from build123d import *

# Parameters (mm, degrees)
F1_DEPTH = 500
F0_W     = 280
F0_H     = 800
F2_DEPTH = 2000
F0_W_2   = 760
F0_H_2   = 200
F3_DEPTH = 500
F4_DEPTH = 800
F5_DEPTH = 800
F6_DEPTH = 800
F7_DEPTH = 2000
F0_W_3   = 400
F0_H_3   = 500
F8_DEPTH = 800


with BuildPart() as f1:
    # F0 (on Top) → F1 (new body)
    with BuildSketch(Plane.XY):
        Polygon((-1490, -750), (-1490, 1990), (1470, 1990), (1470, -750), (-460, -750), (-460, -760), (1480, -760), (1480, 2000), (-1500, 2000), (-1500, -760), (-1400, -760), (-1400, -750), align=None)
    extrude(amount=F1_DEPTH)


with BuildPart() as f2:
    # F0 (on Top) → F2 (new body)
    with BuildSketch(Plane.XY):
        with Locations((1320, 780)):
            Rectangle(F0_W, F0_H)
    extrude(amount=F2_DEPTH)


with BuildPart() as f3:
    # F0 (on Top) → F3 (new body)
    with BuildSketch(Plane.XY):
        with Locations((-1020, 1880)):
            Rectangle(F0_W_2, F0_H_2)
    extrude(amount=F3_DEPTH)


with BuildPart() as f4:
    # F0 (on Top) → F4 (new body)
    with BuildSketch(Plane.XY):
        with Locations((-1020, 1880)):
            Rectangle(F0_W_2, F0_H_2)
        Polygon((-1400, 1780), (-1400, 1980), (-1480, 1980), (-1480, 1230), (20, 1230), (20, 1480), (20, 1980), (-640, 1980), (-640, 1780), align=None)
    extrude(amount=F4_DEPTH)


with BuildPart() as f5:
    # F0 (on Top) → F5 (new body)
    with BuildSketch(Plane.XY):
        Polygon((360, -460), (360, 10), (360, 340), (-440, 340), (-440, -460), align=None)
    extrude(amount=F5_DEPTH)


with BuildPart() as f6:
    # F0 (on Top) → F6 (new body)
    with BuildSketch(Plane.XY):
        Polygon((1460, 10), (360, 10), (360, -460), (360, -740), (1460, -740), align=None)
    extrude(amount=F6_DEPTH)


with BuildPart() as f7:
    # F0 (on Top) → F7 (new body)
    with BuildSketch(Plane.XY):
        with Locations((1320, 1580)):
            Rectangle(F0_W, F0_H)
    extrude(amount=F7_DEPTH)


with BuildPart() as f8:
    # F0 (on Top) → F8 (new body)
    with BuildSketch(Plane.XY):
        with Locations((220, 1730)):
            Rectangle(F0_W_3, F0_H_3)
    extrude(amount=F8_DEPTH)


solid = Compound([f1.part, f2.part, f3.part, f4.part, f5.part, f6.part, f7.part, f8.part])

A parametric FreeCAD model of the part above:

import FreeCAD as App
import Part
import Sketcher
from FreeCAD import Vector
Q = App.Units.Quantity

doc = App.newDocument("Part")
params = doc.addObject("Spreadsheet::Sheet", "Params")
for row, (alias, value) in enumerate([
    ("sketch1_width", "2960 mm"),
    ("sketch1_width2", "1930 mm"),
    ("sketch1_width3", "1940 mm"),
    ("sketch1_width4", "2980 mm"),
    ("sketch1_width5", "100 mm"),
    ("pad1_length", "500 mm"),
    ("sketch2_width", "280 mm"),
    ("sketch2_height", "800 mm"),
    ("pad2_length", "2000 mm"),
    ("sketch3_width", "760 mm"),
    ("sketch3_height", "200 mm"),
    ("pad3_length", "500 mm"),
    ("sketch4_width", "1500 mm"),
    ("sketch4_height", "750 mm"),
    ("pad4_length", "800 mm"),
    ("sketch5_width", "800 mm"),
    ("pad5_length", "800 mm"),
    ("sketch6_width", "1100 mm"),
    ("sketch6_height", "750 mm"),
    ("pad6_length", "800 mm"),
    ("sketch7_width", "280 mm"),
    ("sketch7_height", "800 mm"),
    ("pad7_length", "2000 mm"),
    ("sketch8_width", "400 mm"),
    ("sketch8_height", "500 mm"),
    ("pad8_length", "800 mm"),
], start=1):
    params.set(f"A{row}", alias)
    params.set(f"B{row}", "=" + value)
    params.setAlias(f"B{row}", alias)

body = doc.addObject("PartDesign::Body", "Body")

# Sketch on XY plane
sketch1 = body.newObject("Sketcher::SketchObject", "Sketch")
sketch1.AttachmentSupport = (doc.getObject("XY_Plane"), [""])
sketch1.MapMode = "FlatFace"
sketch1.addGeometry([
    Part.LineSegment(Vector(-1490, -750, 0), Vector(-1490, 1990, 0)),  # 0
    Part.LineSegment(Vector(-1490, 1990, 0), Vector(1470, 1990, 0)),  # 1
    Part.LineSegment(Vector(1470, 1990, 0), Vector(1470, -750, 0)),  # 2
    Part.LineSegment(Vector(1470, -750, 0), Vector(-460, -750, 0)),  # 3
    Part.LineSegment(Vector(-460, -750, 0), Vector(-460, -760, 0)),  # 4
    Part.LineSegment(Vector(-460, -760, 0), Vector(1480, -760, 0)),  # 5
    Part.LineSegment(Vector(1480, -760, 0), Vector(1480, 2000, 0)),  # 6
    Part.LineSegment(Vector(1480, 2000, 0), Vector(-1500, 2000, 0)),  # 7
    Part.LineSegment(Vector(-1500, 2000, 0), Vector(-1500, -760, 0)),  # 8
    Part.LineSegment(Vector(-1500, -760, 0), Vector(-1400, -760, 0)),  # 9
    Part.LineSegment(Vector(-1400, -760, 0), Vector(-1400, -750, 0)),  # 10
    Part.LineSegment(Vector(-1400, -750, 0), Vector(-1490, -750, 0)),  # 11
], False)
sketch1.addConstraint([
    Sketcher.Constraint("Coincident", 0, 2, 1, 1),
    Sketcher.Constraint("Coincident", 1, 2, 2, 1),
    Sketcher.Constraint("Coincident", 2, 2, 3, 1),
    Sketcher.Constraint("Coincident", 3, 2, 4, 1),
    Sketcher.Constraint("Coincident", 4, 2, 5, 1),
    Sketcher.Constraint("Coincident", 5, 2, 6, 1),
    Sketcher.Constraint("Coincident", 6, 2, 7, 1),
    Sketcher.Constraint("Coincident", 7, 2, 8, 1),
    Sketcher.Constraint("Coincident", 8, 2, 9, 1),
    Sketcher.Constraint("Coincident", 9, 2, 10, 1),
    Sketcher.Constraint("Coincident", 10, 2, 11, 1),
    Sketcher.Constraint("Coincident", 11, 2, 0, 1),
    Sketcher.Constraint("Vertical", 0),
    Sketcher.Constraint("Horizontal", 1),
    Sketcher.Constraint("Vertical", 2),
    Sketcher.Constraint("Horizontal", 3),
    Sketcher.Constraint("Vertical", 4),
    Sketcher.Constraint("Horizontal", 5),
    Sketcher.Constraint("Vertical", 6),
    Sketcher.Constraint("Horizontal", 7),
    Sketcher.Constraint("Vertical", 8),
    Sketcher.Constraint("Horizontal", 9),
    Sketcher.Constraint("Vertical", 10),
    Sketcher.Constraint("Horizontal", 11),
    Sketcher.Constraint("Horizontal", 5, 2, 8, 2),
    Sketcher.Constraint("Horizontal", 3, 2, 10, 2),
    Sketcher.Constraint("DistanceX", 1, 1, 1, 2, Q("2960 mm")),
    Sketcher.Constraint("DistanceX", 3, 2, 3, 1, Q("1930 mm")),
    Sketcher.Constraint("DistanceX", 5, 1, 5, 2, Q("1940 mm")),
    Sketcher.Constraint("DistanceX", 7, 2, 7, 1, Q("2980 mm")),
    Sketcher.Constraint("DistanceX", 9, 1, 9, 2, Q("100 mm")),
    Sketcher.Constraint("DistanceY", 0, 1, 0, 2, Q("2740 mm")),
    Sketcher.Constraint("DistanceY", 4, 2, 4, 1, Q("10 mm")),
    Sketcher.Constraint("DistanceY", 6, 1, 6, 2, Q("2760 mm")),
    Sketcher.Constraint("DistanceX", 0, 2, -1, 1, Q("1490 mm")),
    Sketcher.Constraint("DistanceY", -1, 1, 0, 2, Q("1990 mm")),
])
sketch1.setExpression("Constraints[26]", "Params.sketch1_width")
sketch1.setExpression("Constraints[27]", "Params.sketch1_width2")
sketch1.setExpression("Constraints[28]", "Params.sketch1_width3")
sketch1.setExpression("Constraints[29]", "Params.sketch1_width4")
sketch1.setExpression("Constraints[30]", "Params.sketch1_width5")
pad1 = body.newObject("PartDesign::Pad", "Pad")
pad1.Profile = sketch1
pad1.setExpression("Length", "Params.pad1_length")
body2 = doc.addObject("PartDesign::Body", "Body001")

# Sketch on XY plane
sketch2 = body2.newObject("Sketcher::SketchObject", "Sketch001")
sketch2.AttachmentSupport = (doc.getObject("XY_Plane001"), [""])
sketch2.MapMode = "FlatFace"
sketch2.addGeometry([
    Part.LineSegment(Vector(1180, 1180, 0), Vector(1180, 380, 0)),
    Part.LineSegment(Vector(1180, 380, 0), Vector(1460, 380, 0)),
    Part.LineSegment(Vector(1460, 380, 0), Vector(1460, 1180, 0)),
    Part.LineSegment(Vector(1460, 1180, 0), Vector(1180, 1180, 0)),
], False)
sketch2.addConstraint([
    Sketcher.Constraint("Coincident", 0, 2, 1, 1),
    Sketcher.Constraint("Coincident", 1, 2, 2, 1),
    Sketcher.Constraint("Coincident", 2, 2, 3, 1),
    Sketcher.Constraint("Coincident", 3, 2, 0, 1),
    Sketcher.Constraint("Vertical", 0),
    Sketcher.Constraint("Horizontal", 1),
    Sketcher.Constraint("Vertical", 2),
    Sketcher.Constraint("Horizontal", 3),
    Sketcher.Constraint("DistanceX", 1, 1, 1, 2, Q("280 mm")),
    Sketcher.Constraint("DistanceY", 0, 2, 0, 1, Q("800 mm")),
    Sketcher.Constraint("DistanceX", -1, 1, 0, 2, Q("1180 mm")),
    Sketcher.Constraint("DistanceY", -1, 1, 0, 2, Q("380 mm")),
])
sketch2.setExpression("Constraints[8]", "Params.sketch2_width")
sketch2.setExpression("Constraints[9]", "Params.sketch2_height")
pad2 = body2.newObject("PartDesign::Pad", "Pad001")
pad2.Profile = sketch2
pad2.setExpression("Length", "Params.pad2_length")
body3 = doc.addObject("PartDesign::Body", "Body002")

# Sketch on XY plane
sketch3 = body3.newObject("Sketcher::SketchObject", "Sketch002")
sketch3.AttachmentSupport = (doc.getObject("XY_Plane002"), [""])
sketch3.MapMode = "FlatFace"
sketch3.addGeometry([
    Part.LineSegment(Vector(-1400, 1980, 0), Vector(-1400, 1780, 0)),
    Part.LineSegment(Vector(-1400, 1780, 0), Vector(-640, 1780, 0)),
    Part.LineSegment(Vector(-640, 1780, 0), Vector(-640, 1980, 0)),
    Part.LineSegment(Vector(-640, 1980, 0), Vector(-1400, 1980, 0)),
], False)
sketch3.addConstraint([
    Sketcher.Constraint("Coincident", 0, 2, 1, 1),
    Sketcher.Constraint("Coincident", 1, 2, 2, 1),
    Sketcher.Constraint("Coincident", 2, 2, 3, 1),
    Sketcher.Constraint("Coincident", 3, 2, 0, 1),
    Sketcher.Constraint("Vertical", 0),
    Sketcher.Constraint("Horizontal", 1),
    Sketcher.Constraint("Vertical", 2),
    Sketcher.Constraint("Horizontal", 3),
    Sketcher.Constraint("DistanceX", 1, 1, 1, 2, Q("760 mm")),
    Sketcher.Constraint("DistanceY", 0, 2, 0, 1, Q("200 mm")),
    Sketcher.Constraint("DistanceX", 0, 2, -1, 1, Q("1400 mm")),
    Sketcher.Constraint("DistanceY", -1, 1, 0, 2, Q("1780 mm")),
])
sketch3.setExpression("Constraints[8]", "Params.sketch3_width")
sketch3.setExpression("Constraints[9]", "Params.sketch3_height")
pad3 = body3.newObject("PartDesign::Pad", "Pad002")
pad3.Profile = sketch3
pad3.setExpression("Length", "Params.pad3_length")
body4 = doc.addObject("PartDesign::Body", "Body003")

# Sketch on XY plane
sketch4 = body4.newObject("Sketcher::SketchObject", "Sketch003")
sketch4.AttachmentSupport = (doc.getObject("XY_Plane003"), [""])
sketch4.MapMode = "FlatFace"
sketch4.addGeometry([
    Part.LineSegment(Vector(-1480, 1980, 0), Vector(-1480, 1230, 0)),
    Part.LineSegment(Vector(-1480, 1230, 0), Vector(20, 1230, 0)),
    Part.LineSegment(Vector(20, 1230, 0), Vector(20, 1980, 0)),
    Part.LineSegment(Vector(20, 1980, 0), Vector(-1480, 1980, 0)),
], False)
sketch4.addConstraint([
    Sketcher.Constraint("Coincident", 0, 2, 1, 1),
    Sketcher.Constraint("Coincident", 1, 2, 2, 1),
    Sketcher.Constraint("Coincident", 2, 2, 3, 1),
    Sketcher.Constraint("Coincident", 3, 2, 0, 1),
    Sketcher.Constraint("Vertical", 0),
    Sketcher.Constraint("Horizontal", 1),
    Sketcher.Constraint("Vertical", 2),
    Sketcher.Constraint("Horizontal", 3),
    Sketcher.Constraint("DistanceX", 1, 1, 1, 2, Q("1500 mm")),
    Sketcher.Constraint("DistanceY", 0, 2, 0, 1, Q("750 mm")),
    Sketcher.Constraint("DistanceX", 0, 2, -1, 1, Q("1480 mm")),
    Sketcher.Constraint("DistanceY", -1, 1, 0, 2, Q("1230 mm")),
])
sketch4.setExpression("Constraints[8]", "Params.sketch4_width")
sketch4.setExpression("Constraints[9]", "Params.sketch4_height")
pad4 = body4.newObject("PartDesign::Pad", "Pad003")
pad4.Profile = sketch4
pad4.setExpression("Length", "Params.pad4_length")
body5 = doc.addObject("PartDesign::Body", "Body004")

# Sketch on XY plane
sketch5 = body5.newObject("Sketcher::SketchObject", "Sketch004")
sketch5.AttachmentSupport = (doc.getObject("XY_Plane004"), [""])
sketch5.MapMode = "FlatFace"
sketch5.addGeometry([
    Part.LineSegment(Vector(360, -460, 0), Vector(360, 340, 0)),
    Part.LineSegment(Vector(360, 340, 0), Vector(-440, 340, 0)),
    Part.LineSegment(Vector(-440, 340, 0), Vector(-440, -460, 0)),
    Part.LineSegment(Vector(-440, -460, 0), Vector(360, -460, 0)),
], False)
sketch5.addConstraint([
    Sketcher.Constraint("Coincident", 0, 2, 1, 1),
    Sketcher.Constraint("Coincident", 1, 2, 2, 1),
    Sketcher.Constraint("Coincident", 2, 2, 3, 1),
    Sketcher.Constraint("Coincident", 3, 2, 0, 1),
    Sketcher.Constraint("Vertical", 0),
    Sketcher.Constraint("Horizontal", 1),
    Sketcher.Constraint("Vertical", 2),
    Sketcher.Constraint("Horizontal", 3),
    Sketcher.Constraint("Equal", 3, 0),
    Sketcher.Constraint("DistanceX", 1, 2, 1, 1, Q("800 mm")),
    Sketcher.Constraint("DistanceX", -1, 1, 0, 2, Q("360 mm")),
    Sketcher.Constraint("DistanceY", -1, 1, 0, 2, Q("340 mm")),
])
sketch5.setExpression("Constraints[9]", "Params.sketch5_width")
pad5 = body5.newObject("PartDesign::Pad", "Pad004")
pad5.Profile = sketch5
pad5.setExpression("Length", "Params.pad5_length")
body6 = doc.addObject("PartDesign::Body", "Body005")

# Sketch on XY plane
sketch6 = body6.newObject("Sketcher::SketchObject", "Sketch005")
sketch6.AttachmentSupport = (doc.getObject("XY_Plane005"), [""])
sketch6.MapMode = "FlatFace"
sketch6.addGeometry([
    Part.LineSegment(Vector(1460, 10, 0), Vector(360, 10, 0)),
    Part.LineSegment(Vector(360, 10, 0), Vector(360, -740, 0)),
    Part.LineSegment(Vector(360, -740, 0), Vector(1460, -740, 0)),
    Part.LineSegment(Vector(1460, -740, 0), Vector(1460, 10, 0)),
], False)
sketch6.addConstraint([
    Sketcher.Constraint("Coincident", 0, 2, 1, 1),
    Sketcher.Constraint("Coincident", 1, 2, 2, 1),
    Sketcher.Constraint("Coincident", 2, 2, 3, 1),
    Sketcher.Constraint("Coincident", 3, 2, 0, 1),
    Sketcher.Constraint("Horizontal", 0),
    Sketcher.Constraint("Vertical", 1),
    Sketcher.Constraint("Horizontal", 2),
    Sketcher.Constraint("Vertical", 3),
    Sketcher.Constraint("DistanceX", 0, 2, 0, 1, Q("1100 mm")),
    Sketcher.Constraint("DistanceY", 1, 2, 1, 1, Q("750 mm")),
    Sketcher.Constraint("DistanceX", -1, 1, 0, 2, Q("360 mm")),
    Sketcher.Constraint("DistanceY", -1, 1, 0, 2, Q("10 mm")),
])
sketch6.setExpression("Constraints[8]", "Params.sketch6_width")
sketch6.setExpression("Constraints[9]", "Params.sketch6_height")
pad6 = body6.newObject("PartDesign::Pad", "Pad005")
pad6.Profile = sketch6
pad6.setExpression("Length", "Params.pad6_length")
body7 = doc.addObject("PartDesign::Body", "Body006")

# Sketch on XY plane
sketch7 = body7.newObject("Sketcher::SketchObject", "Sketch006")
sketch7.AttachmentSupport = (doc.getObject("XY_Plane006"), [""])
sketch7.MapMode = "FlatFace"
sketch7.addGeometry([
    Part.LineSegment(Vector(1180, 1980, 0), Vector(1180, 1180, 0)),
    Part.LineSegment(Vector(1180, 1180, 0), Vector(1460, 1180, 0)),
    Part.LineSegment(Vector(1460, 1180, 0), Vector(1460, 1980, 0)),
    Part.LineSegment(Vector(1460, 1980, 0), Vector(1180, 1980, 0)),
], False)
sketch7.addConstraint([
    Sketcher.Constraint("Coincident", 0, 2, 1, 1),
    Sketcher.Constraint("Coincident", 1, 2, 2, 1),
    Sketcher.Constraint("Coincident", 2, 2, 3, 1),
    Sketcher.Constraint("Coincident", 3, 2, 0, 1),
    Sketcher.Constraint("Vertical", 0),
    Sketcher.Constraint("Horizontal", 1),
    Sketcher.Constraint("Vertical", 2),
    Sketcher.Constraint("Horizontal", 3),
    Sketcher.Constraint("DistanceX", 1, 1, 1, 2, Q("280 mm")),
    Sketcher.Constraint("DistanceY", 0, 2, 0, 1, Q("800 mm")),
    Sketcher.Constraint("DistanceX", -1, 1, 0, 2, Q("1180 mm")),
    Sketcher.Constraint("DistanceY", -1, 1, 0, 2, Q("1180 mm")),
])
sketch7.setExpression("Constraints[8]", "Params.sketch7_width")
sketch7.setExpression("Constraints[9]", "Params.sketch7_height")
pad7 = body7.newObject("PartDesign::Pad", "Pad006")
pad7.Profile = sketch7
pad7.setExpression("Length", "Params.pad7_length")
body8 = doc.addObject("PartDesign::Body", "Body007")

# Sketch on XY plane
sketch8 = body8.newObject("Sketcher::SketchObject", "Sketch007")
sketch8.AttachmentSupport = (doc.getObject("XY_Plane007"), [""])
sketch8.MapMode = "FlatFace"
sketch8.addGeometry([
    Part.LineSegment(Vector(20, 1980, 0), Vector(20, 1480, 0)),
    Part.LineSegment(Vector(20, 1480, 0), Vector(420, 1480, 0)),
    Part.LineSegment(Vector(420, 1480, 0), Vector(420, 1980, 0)),
    Part.LineSegment(Vector(420, 1980, 0), Vector(20, 1980, 0)),
], False)
sketch8.addConstraint([
    Sketcher.Constraint("Coincident", 0, 2, 1, 1),
    Sketcher.Constraint("Coincident", 1, 2, 2, 1),
    Sketcher.Constraint("Coincident", 2, 2, 3, 1),
    Sketcher.Constraint("Coincident", 3, 2, 0, 1),
    Sketcher.Constraint("Vertical", 0),
    Sketcher.Constraint("Horizontal", 1),
    Sketcher.Constraint("Vertical", 2),
    Sketcher.Constraint("Horizontal", 3),
    Sketcher.Constraint("DistanceX", 1, 1, 1, 2, Q("400 mm")),
    Sketcher.Constraint("DistanceY", 0, 2, 0, 1, Q("500 mm")),
    Sketcher.Constraint("DistanceX", -1, 1, 0, 2, Q("20 mm")),
    Sketcher.Constraint("DistanceY", -1, 1, 0, 2, Q("1480 mm")),
])
sketch8.setExpression("Constraints[8]", "Params.sketch8_width")
sketch8.setExpression("Constraints[9]", "Params.sketch8_height")
pad8 = body8.newObject("PartDesign::Pad", "Pad007")
pad8.Profile = sketch8
pad8.setExpression("Length", "Params.pad8_length")

doc.recompute()
